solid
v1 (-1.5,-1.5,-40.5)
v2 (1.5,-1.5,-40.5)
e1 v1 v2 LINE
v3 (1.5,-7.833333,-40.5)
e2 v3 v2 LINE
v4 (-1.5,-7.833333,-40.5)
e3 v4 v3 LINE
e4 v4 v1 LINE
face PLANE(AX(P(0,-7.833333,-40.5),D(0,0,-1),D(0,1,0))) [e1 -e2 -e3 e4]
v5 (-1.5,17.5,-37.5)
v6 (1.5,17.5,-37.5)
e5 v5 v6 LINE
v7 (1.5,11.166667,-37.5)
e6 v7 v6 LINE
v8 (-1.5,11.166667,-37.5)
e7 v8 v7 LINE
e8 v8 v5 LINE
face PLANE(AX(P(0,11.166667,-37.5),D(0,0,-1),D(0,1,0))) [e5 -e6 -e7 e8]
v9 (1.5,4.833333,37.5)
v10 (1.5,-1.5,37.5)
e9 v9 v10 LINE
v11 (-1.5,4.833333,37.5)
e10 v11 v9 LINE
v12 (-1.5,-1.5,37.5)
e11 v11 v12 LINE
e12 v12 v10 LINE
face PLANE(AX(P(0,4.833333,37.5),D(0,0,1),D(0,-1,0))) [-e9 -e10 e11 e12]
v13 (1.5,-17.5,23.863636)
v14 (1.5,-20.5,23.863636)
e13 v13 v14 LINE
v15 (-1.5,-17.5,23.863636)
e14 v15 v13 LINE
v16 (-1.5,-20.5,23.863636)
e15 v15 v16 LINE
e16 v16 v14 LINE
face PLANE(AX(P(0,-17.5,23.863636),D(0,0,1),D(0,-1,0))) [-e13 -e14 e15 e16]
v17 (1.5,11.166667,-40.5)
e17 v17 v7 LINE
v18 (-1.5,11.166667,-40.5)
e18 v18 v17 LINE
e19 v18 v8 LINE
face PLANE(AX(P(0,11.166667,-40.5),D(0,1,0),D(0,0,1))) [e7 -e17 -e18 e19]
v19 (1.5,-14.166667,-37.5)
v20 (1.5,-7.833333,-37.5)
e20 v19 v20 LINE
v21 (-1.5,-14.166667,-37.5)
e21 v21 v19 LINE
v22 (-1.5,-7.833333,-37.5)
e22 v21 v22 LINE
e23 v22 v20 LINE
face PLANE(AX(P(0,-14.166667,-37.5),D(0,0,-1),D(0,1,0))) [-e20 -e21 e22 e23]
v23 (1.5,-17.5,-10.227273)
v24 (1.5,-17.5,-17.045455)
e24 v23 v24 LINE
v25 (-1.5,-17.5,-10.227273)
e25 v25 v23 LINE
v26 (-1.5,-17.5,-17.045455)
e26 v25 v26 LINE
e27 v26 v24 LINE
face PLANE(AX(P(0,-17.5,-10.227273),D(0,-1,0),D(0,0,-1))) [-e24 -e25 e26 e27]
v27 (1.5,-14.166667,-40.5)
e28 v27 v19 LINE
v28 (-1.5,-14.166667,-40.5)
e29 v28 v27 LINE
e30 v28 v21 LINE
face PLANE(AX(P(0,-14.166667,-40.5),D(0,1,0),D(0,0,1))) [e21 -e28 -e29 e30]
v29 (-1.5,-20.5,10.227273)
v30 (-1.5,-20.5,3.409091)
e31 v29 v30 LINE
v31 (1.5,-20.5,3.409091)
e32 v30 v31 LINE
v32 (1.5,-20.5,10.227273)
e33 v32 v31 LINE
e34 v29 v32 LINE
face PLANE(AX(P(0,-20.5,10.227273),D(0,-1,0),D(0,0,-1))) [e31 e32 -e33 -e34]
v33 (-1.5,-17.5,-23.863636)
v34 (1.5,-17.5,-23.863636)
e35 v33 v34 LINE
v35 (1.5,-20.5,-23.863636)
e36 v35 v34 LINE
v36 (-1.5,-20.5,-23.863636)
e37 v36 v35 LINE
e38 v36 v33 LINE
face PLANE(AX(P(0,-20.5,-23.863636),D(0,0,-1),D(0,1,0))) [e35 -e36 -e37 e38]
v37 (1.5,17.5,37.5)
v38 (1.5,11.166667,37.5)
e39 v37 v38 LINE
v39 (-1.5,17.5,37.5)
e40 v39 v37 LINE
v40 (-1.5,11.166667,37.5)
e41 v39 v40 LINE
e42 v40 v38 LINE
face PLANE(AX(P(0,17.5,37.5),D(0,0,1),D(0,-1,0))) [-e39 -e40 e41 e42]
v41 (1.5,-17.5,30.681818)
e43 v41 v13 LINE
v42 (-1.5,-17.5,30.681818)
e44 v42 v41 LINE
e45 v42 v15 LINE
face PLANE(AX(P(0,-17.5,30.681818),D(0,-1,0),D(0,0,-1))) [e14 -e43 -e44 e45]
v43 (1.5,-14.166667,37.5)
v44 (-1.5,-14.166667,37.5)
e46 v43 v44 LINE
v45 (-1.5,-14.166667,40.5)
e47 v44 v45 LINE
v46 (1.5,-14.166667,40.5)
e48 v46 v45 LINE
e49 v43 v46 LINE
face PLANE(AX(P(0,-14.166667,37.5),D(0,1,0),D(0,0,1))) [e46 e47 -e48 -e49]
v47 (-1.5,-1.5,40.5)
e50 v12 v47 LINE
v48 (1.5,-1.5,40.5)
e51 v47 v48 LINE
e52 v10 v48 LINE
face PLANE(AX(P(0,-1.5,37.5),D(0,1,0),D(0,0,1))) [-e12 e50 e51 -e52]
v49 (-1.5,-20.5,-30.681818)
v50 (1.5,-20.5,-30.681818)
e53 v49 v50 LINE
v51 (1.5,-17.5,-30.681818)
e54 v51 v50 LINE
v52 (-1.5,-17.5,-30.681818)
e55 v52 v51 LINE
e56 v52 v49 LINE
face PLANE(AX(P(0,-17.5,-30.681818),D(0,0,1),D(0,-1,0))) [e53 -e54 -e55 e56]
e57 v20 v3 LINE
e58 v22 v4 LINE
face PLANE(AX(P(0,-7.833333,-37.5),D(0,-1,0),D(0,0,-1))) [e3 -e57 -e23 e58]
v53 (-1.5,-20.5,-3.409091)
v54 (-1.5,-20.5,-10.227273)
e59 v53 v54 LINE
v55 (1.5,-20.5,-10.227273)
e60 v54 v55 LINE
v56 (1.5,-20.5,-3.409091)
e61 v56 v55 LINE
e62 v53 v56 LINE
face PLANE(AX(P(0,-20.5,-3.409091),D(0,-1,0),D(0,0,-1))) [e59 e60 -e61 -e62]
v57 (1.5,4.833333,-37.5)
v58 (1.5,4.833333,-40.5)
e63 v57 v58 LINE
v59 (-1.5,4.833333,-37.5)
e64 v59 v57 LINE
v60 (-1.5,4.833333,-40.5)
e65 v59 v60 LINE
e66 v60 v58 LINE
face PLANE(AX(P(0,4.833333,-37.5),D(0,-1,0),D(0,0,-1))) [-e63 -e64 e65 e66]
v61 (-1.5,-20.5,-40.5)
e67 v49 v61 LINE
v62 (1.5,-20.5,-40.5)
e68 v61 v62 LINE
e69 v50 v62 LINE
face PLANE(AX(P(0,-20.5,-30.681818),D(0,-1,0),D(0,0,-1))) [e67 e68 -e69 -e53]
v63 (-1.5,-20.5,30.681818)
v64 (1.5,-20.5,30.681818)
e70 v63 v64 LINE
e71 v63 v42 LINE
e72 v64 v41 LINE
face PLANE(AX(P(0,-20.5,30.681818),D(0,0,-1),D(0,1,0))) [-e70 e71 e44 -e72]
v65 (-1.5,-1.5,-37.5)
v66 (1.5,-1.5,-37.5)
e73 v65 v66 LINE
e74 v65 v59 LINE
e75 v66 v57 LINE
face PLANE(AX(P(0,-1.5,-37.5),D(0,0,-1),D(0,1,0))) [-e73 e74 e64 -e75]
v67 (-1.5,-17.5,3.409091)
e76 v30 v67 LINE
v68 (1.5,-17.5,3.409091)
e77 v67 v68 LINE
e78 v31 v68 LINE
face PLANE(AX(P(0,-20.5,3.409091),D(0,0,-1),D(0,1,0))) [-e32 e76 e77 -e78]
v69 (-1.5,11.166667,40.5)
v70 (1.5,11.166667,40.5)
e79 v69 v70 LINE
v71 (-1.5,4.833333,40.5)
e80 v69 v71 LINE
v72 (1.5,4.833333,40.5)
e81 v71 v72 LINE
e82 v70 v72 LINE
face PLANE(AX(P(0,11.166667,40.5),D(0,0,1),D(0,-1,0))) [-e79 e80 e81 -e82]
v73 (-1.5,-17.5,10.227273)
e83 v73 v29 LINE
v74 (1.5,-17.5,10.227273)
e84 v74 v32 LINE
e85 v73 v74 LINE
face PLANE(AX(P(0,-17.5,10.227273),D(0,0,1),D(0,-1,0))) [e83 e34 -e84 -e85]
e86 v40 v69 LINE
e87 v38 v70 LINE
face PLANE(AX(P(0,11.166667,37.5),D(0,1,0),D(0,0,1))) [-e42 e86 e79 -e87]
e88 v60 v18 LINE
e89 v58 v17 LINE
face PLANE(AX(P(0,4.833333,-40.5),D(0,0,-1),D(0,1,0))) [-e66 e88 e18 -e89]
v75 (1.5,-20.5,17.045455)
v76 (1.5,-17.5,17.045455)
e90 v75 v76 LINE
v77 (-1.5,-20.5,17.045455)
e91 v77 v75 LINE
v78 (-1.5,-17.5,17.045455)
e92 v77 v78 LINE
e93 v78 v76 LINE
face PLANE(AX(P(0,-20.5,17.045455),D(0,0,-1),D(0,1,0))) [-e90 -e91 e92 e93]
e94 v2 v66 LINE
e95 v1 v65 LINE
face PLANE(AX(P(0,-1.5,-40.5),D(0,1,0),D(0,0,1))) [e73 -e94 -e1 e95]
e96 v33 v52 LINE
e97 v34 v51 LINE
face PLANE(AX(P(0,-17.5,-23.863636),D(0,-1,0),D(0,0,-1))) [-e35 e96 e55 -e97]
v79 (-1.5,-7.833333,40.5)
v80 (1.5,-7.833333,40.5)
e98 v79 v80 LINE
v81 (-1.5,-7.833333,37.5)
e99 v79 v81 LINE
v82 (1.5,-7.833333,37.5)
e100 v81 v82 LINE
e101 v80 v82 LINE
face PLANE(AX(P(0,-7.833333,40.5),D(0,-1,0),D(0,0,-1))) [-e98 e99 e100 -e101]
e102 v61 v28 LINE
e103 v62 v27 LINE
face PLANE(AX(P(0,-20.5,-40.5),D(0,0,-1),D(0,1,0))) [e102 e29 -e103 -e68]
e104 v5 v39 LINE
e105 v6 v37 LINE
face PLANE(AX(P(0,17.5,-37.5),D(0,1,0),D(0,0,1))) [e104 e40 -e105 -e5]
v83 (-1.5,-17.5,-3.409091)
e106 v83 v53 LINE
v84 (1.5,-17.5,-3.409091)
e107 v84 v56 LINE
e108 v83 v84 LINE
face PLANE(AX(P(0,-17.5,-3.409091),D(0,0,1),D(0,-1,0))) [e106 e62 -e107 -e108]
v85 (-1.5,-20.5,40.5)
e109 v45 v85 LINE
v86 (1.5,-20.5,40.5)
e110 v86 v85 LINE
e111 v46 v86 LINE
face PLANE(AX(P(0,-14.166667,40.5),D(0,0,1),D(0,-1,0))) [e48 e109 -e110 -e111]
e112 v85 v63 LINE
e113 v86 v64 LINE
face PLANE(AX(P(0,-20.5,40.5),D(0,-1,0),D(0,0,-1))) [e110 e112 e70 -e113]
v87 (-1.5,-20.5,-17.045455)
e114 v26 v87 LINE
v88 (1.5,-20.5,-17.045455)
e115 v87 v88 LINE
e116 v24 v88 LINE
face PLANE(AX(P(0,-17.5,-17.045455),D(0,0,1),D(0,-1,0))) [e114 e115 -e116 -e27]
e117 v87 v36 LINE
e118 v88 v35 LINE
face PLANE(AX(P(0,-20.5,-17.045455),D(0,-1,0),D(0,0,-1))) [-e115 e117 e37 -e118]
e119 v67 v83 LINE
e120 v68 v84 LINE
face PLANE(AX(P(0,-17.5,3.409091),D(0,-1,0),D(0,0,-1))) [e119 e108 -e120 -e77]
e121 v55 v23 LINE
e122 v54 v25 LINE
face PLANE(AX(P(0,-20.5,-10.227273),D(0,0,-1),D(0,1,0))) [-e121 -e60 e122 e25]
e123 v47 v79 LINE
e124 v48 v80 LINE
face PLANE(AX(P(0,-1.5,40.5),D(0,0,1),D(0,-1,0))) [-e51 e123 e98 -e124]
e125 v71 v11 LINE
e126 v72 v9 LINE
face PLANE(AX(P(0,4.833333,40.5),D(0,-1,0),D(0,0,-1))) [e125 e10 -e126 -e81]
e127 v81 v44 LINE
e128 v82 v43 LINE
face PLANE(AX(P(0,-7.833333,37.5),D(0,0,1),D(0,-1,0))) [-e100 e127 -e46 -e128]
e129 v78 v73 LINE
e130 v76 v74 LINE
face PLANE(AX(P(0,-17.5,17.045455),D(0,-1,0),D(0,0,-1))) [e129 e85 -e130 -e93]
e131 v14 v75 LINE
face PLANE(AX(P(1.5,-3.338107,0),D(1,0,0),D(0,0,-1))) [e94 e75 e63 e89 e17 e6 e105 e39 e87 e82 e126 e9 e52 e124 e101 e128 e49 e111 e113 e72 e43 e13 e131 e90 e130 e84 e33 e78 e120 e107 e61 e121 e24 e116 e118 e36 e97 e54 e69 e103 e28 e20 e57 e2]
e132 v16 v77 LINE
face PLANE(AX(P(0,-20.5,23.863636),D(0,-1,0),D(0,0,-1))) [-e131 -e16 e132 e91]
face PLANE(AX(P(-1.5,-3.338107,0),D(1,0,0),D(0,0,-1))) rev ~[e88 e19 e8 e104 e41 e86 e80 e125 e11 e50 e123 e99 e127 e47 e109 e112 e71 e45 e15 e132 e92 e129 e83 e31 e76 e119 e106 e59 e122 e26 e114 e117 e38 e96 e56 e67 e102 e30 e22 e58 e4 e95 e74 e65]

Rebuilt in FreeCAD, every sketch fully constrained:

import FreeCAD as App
import Part
import Sketcher

V = App.Vector
Q = App.Units.Quantity


def add_polygon(sketch, points):
    """Adds a closed chain of lines whose ends are joined by coincident constraints."""
    first, n = sketch.GeometryCount, len(points)
    for a, b in zip(points, points[1:] + points[:1]):
        sketch.addGeometry(Part.LineSegment(App.Vector(*a, 0), App.Vector(*b, 0)), False)
    for i in range(n):
        sketch.addConstraint(Sketcher.Constraint("Coincident", first + i, 2, first + (i + 1) % n, 1))

doc = App.newDocument("Part")
body = doc.addObject("PartDesign::Body", "Body")

sketch1 = body.newObject("Sketcher::SketchObject", "Sketch")
sketch1.AttachmentSupport = (doc.getObject("YZ_Plane"), [""])
sketch1.MapMode = "FlatFace"
add_polygon(sketch1, [(-20.5, 40.5), (-20.5, 30.7), (-17.5, 30.7), (-17.5, 23.9), (-20.5, 23.9), (-20.5, 17), (-17.5, 17), (-17.5, 10.2), (-20.5, 10.2), (-20.5, 3.4), (-17.5, 3.4), (-17.5, -3.4), (-20.5, -3.4), (-20.5, -10.2), (-17.5, -10.2), (-17.5, -17), (-20.5, -17), (-20.5, -23.9), (-17.5, -23.9), (-17.5, -30.7), (-20.5, -30.7), (-20.5, -40.5), (-14.2, -40.5), (-14.2, -37.5), (-7.8, -37.5), (-7.8, -40.5), (-1.5, -40.5), (-1.5, -37.5), (4.8, -37.5), (4.8, -40.5), (11.2, -40.5), (11.2, -37.5), (17.5, -37.5), (17.5, 37.5), (11.2, 37.5), (11.2, 40.5), (4.8, 40.5), (4.8, 37.5), (-1.5, 37.5), (-1.5, 40.5), (-7.8, 40.5), (-7.8, 37.5), (-14.2, 37.5), (-14.2, 40.5)])
sketch1.addConstraint([
    Sketcher.Constraint("Vertical", 0),
    Sketcher.Constraint("Horizontal", 1),
    Sketcher.Constraint("Vertical", 2),
    Sketcher.Constraint("Horizontal", 3),
    Sketcher.Constraint("Vertical", 4),
    Sketcher.Constraint("Horizontal", 5),
    Sketcher.Constraint("Vertical", 6),
    Sketcher.Constraint("Horizontal", 7),
    Sketcher.Constraint("Vertical", 8),
    Sketcher.Constraint("Horizontal", 9),
    Sketcher.Constraint("Vertical", 10),
    Sketcher.Constraint("Horizontal", 11),
    Sketcher.Constraint("Vertical", 12),
    Sketcher.Constraint("Horizontal", 13),
    Sketcher.Constraint("Vertical", 14),
    Sketcher.Constraint("Horizontal", 15),
    Sketcher.Constraint("Vertical", 16),
    Sketcher.Constraint("Horizontal", 17),
    Sketcher.Constraint("Vertical", 18),
    Sketcher.Constraint("Horizontal", 19),
    Sketcher.Constraint("Vertical", 20),
    Sketcher.Constraint("Horizontal", 21),
    Sketcher.Constraint("Vertical", 22),
    Sketcher.Constraint("Horizontal", 23),
    Sketcher.Constraint("Vertical", 24),
    Sketcher.Constraint("Horizontal", 25),
    Sketcher.Constraint("Vertical", 26),
    Sketcher.Constraint("Horizontal", 27),
    Sketcher.Constraint("Vertical", 28),
    Sketcher.Constraint("Horizontal", 29),
    Sketcher.Constraint("Vertical", 30),
    Sketcher.Constraint("Horizontal", 31),
    Sketcher.Constraint("Vertical", 32),
    Sketcher.Constraint("Horizontal", 33),
    Sketcher.Constraint("Vertical", 34),
    Sketcher.Constraint("Horizontal", 35),
    Sketcher.Constraint("Vertical", 36),
    Sketcher.Constraint("Horizontal", 37),
    Sketcher.Constraint("Vertical", 38),
    Sketcher.Constraint("Horizontal", 39),
    Sketcher.Constraint("Vertical", 40),
    Sketcher.Constraint("Horizontal", 41),
    Sketcher.Constraint("Vertical", 42),
    Sketcher.Constraint("Horizontal", 43),
    Sketcher.Constraint("Symmetric", 8, 2, 11, 2, -1),
    Sketcher.Constraint("Symmetric", 6, 2, 13, 2, -1),
    Sketcher.Constraint("Symmetric", 4, 2, 15, 2, -1),
    Sketcher.Constraint("Symmetric", 2, 2, 17, 2, -1),
    Sketcher.Constraint("Symmetric", 0, 2, 19, 2, -1),
    Sketcher.Constraint("Symmetric", 30, 2, 33, 2, -1),
    Sketcher.Constraint("Symmetric", 28, 2, 35, 2, -1),
    Sketcher.Constraint("Symmetric", 26, 2, 37, 2, -1),
    Sketcher.Constraint("Symmetric", 24, 2, 39, 2, -1),
    Sketcher.Constraint("Symmetric", 22, 2, 41, 2, -1),
    Sketcher.Constraint("Horizontal", 21, 2, 24, 2),
    Sketcher.Constraint("Horizontal", 23, 2, 26, 2),
    Sketcher.Constraint("Horizontal", 25, 2, 28, 2),
    Sketcher.Constraint("Horizontal", 27, 2, 30, 2),
    Sketcher.Constraint("Horizontal", 39, 2, 42, 2),
    Sketcher.Constraint("Vertical", 0, 2, 3, 2),
    Sketcher.Constraint("Vertical", 2, 2, 5, 2),
    Sketcher.Constraint("Vertical", 4, 2, 7, 2),
    Sketcher.Constraint("Vertical", 6, 2, 9, 2),
    Sketcher.Constraint("Equal", 21, 23),
    Sketcher.Constraint("Equal", 23, 25),
    Sketcher.Constraint("Equal", 25, 27),
    Sketcher.Constraint("Equal", 27, 29),
    Sketcher.Constraint("Equal", 29, 31),
    Sketcher.Constraint("Equal", 2, 4),
    Sketcher.Constraint("Equal", 4, 6),
    Sketcher.Constraint("Equal", 6, 8),
    Sketcher.Constraint("Equal", 8, 10),
    Sketcher.Constraint("Equal", 19, 22),
    Sketcher.Constraint("DistanceX", 1, 1, 1, 2, Q("3 mm")),
    Sketcher.Constraint("DistanceY", 32, 1, 32, 2, Q("75 mm")),
    Sketcher.Constraint("DistanceX", 18, 2, 25, 2, Q("16 mm")),
    Sketcher.Constraint("DistanceX", 0, 2, -1, 1, Q("20.5 mm")),
    Sketcher.Constraint("DistanceY", 0, 2, 0, 1, Q("9.818182 mm")),
])
pad1 = body.newObject("PartDesign::Pad", "Pad")
pad1.Profile = sketch1
pad1.Length = 3
pad1.Midplane = True

doc.recompute()
